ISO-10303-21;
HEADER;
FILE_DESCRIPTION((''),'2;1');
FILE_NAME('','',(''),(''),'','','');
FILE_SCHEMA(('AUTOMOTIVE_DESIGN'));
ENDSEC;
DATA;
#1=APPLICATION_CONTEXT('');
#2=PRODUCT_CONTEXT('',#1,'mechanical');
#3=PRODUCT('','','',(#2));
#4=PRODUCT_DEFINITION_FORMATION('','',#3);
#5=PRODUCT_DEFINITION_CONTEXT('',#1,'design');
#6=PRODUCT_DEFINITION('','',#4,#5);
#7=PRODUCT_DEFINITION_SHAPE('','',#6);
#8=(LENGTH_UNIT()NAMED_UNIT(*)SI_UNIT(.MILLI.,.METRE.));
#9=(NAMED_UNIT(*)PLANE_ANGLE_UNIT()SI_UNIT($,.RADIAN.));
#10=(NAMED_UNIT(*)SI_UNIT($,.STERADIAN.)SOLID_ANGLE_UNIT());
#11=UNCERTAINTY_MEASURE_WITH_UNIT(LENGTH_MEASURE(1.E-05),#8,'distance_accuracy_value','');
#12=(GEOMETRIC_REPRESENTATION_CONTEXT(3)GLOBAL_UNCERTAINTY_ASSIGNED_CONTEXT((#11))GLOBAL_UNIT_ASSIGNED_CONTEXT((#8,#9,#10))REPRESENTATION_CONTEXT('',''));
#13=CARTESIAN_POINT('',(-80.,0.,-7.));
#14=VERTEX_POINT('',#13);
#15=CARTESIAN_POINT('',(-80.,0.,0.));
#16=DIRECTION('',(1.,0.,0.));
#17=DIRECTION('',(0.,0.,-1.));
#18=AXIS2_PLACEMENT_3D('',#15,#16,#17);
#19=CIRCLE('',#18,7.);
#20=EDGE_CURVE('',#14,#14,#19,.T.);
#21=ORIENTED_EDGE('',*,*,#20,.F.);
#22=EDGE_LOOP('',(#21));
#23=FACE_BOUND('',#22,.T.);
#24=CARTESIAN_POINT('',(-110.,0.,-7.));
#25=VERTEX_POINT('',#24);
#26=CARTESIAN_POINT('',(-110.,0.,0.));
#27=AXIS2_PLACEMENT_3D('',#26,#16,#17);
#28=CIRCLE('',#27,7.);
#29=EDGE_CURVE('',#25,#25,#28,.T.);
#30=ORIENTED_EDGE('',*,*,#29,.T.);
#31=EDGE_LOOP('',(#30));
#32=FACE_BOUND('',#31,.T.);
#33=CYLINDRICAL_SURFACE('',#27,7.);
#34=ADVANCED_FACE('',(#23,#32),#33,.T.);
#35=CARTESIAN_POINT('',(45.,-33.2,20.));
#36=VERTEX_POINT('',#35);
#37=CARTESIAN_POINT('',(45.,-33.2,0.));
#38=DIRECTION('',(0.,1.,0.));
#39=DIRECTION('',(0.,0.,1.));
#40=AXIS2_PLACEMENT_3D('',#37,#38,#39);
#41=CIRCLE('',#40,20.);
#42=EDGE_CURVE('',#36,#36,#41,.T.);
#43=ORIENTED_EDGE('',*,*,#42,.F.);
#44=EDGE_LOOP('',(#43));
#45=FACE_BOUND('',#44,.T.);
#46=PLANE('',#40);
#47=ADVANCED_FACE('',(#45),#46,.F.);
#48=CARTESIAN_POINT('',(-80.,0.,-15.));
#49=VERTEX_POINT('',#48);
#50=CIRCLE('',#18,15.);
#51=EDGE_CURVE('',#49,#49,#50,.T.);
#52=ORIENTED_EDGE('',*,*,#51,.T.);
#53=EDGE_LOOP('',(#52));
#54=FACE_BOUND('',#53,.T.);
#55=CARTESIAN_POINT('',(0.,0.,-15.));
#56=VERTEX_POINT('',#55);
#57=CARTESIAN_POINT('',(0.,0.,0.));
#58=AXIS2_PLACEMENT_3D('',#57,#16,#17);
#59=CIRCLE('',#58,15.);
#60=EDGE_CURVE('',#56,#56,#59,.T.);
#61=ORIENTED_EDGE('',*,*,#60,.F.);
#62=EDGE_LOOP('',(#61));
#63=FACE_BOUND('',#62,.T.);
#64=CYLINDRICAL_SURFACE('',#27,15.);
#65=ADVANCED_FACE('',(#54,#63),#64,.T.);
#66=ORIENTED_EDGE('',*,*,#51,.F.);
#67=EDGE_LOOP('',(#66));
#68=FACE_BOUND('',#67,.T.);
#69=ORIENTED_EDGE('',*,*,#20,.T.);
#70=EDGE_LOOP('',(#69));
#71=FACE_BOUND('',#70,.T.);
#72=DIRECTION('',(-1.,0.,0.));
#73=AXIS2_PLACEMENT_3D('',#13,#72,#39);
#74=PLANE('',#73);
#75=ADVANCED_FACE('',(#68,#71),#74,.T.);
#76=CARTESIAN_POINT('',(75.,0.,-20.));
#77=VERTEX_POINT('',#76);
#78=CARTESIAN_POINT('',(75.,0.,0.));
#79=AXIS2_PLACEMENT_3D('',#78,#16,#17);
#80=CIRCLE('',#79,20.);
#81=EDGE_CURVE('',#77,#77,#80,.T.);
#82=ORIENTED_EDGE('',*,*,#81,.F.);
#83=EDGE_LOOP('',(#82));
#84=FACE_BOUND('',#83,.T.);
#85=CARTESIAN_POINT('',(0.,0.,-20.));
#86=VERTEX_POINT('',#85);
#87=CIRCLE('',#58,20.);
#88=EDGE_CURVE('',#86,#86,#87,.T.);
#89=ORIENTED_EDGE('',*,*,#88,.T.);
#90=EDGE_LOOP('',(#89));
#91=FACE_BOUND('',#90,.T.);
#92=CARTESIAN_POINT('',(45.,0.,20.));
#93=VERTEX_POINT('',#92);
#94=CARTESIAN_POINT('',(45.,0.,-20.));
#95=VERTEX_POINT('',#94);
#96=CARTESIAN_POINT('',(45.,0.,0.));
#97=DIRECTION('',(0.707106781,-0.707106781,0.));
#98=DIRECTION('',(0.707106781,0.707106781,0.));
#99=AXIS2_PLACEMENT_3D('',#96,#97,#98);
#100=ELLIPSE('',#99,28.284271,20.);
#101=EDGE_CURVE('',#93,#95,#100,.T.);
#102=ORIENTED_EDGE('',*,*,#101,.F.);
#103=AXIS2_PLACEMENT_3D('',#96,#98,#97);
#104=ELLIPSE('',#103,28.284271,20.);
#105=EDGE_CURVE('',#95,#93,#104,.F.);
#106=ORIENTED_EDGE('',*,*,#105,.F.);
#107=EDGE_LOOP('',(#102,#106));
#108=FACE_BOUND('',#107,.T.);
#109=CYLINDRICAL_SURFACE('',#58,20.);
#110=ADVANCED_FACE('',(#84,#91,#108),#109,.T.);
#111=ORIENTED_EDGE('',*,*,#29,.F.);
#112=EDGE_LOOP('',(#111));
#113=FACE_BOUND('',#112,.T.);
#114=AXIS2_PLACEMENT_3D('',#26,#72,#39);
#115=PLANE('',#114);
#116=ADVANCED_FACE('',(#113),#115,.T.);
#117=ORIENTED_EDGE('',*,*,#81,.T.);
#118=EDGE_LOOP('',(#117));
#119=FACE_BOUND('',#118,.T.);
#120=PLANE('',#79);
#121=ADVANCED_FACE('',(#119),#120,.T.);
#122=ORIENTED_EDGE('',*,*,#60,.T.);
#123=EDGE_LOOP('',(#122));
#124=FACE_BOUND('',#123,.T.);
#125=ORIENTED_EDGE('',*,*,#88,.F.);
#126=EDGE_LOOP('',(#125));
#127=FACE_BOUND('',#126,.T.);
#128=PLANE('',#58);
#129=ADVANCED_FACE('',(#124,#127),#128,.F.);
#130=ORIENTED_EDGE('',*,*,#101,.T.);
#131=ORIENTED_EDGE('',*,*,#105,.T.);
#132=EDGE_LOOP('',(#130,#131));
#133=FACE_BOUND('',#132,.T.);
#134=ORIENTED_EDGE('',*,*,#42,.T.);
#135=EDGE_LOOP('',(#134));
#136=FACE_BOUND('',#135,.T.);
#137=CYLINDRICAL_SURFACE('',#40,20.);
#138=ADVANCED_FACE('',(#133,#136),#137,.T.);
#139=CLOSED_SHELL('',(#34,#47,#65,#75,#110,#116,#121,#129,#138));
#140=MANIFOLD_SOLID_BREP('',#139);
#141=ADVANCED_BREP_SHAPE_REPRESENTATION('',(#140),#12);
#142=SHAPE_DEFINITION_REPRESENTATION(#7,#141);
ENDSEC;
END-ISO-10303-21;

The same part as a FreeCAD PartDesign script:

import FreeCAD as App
import Part
import Sketcher


def add_polygon(sketch, points):
    """Adds a closed chain of lines whose ends are joined by coincident constraints."""
    first, n = sketch.GeometryCount, len(points)
    for a, b in zip(points, points[1:] + points[:1]):
        sketch.addGeometry(Part.LineSegment(App.Vector(*a, 0), App.Vector(*b, 0)), False)
    for i in range(n):
        sketch.addConstraint(Sketcher.Constraint("Coincident", first + i, 2, first + (i + 1) % n, 1))

doc = App.newDocument("Part")
body = doc.addObject("PartDesign::Body", "Body")

sketch1 = doc.addObject("Sketcher::SketchObject", "Sketch")
body.addObject(sketch1)
sketch1.AttachmentSupport = (doc.YZ_Plane, [""])
sketch1.MapMode = "FlatFace"
sketch1.addGeometry(Part.Circle(App.Vector(0, 0, 0), App.Vector(0, 0, 1), 20), False)
sketch1.addConstraint([
    Sketcher.Constraint("Coincident", 0, 3, -1, 1),
    Sketcher.Constraint("Diameter", 0, 40.0),
])

sketch2 = doc.addObject("Sketcher::SketchObject", "Sketch001")
body.addObject(sketch2)
sketch2.AttachmentSupport = (doc.XY_Plane, [""])
sketch2.MapMode = "FlatFace"
sketch2.addGeometry(Part.LineSegment(App.Vector(0, 0, 0), App.Vector(75, 0, 0)), False)
sketch2.addConstraint([
    Sketcher.Constraint("Horizontal", 0),
    Sketcher.Constraint("Coincident", 0, 1, -1, 1),
    Sketcher.Constraint("DistanceX", 0, 1, 0, 2, 75.0),
])
doc.recompute()

additivepipe = doc.addObject("PartDesign::AdditivePipe", "AdditivePipe")
body.addObject(additivepipe)
additivepipe.Profile = sketch1
additivepipe.Spine = (sketch2, ["Edge1"])

sketch3 = doc.addObject("Sketcher::SketchObject", "Sketch002")
body.addObject(sketch3)
sketch3.AttachmentSupport = (doc.XZ_Plane, [""])
sketch3.MapMode = "FlatFace"
sketch3.addGeometry(Part.Circle(App.Vector(45, 0, 0), App.Vector(0, 0, 1), 20), False)
sketch3.addConstraint([
    Sketcher.Constraint("PointOnObject", 0, 3, -1),
    Sketcher.Constraint("Diameter", 0, 40.0),
    Sketcher.Constraint("DistanceX", -1, 1, 0, 3, 45.0),
])
pad1 = doc.addObject("PartDesign::Pad", "Pad")
body.addObject(pad1)
pad1.Profile = sketch3
pad1.Length = 33.2

sketch4 = doc.addObject("Sketcher::SketchObject", "Sketch003")
body.addObject(sketch4)
sketch4.AttachmentSupport = (doc.XZ_Plane, [""])
sketch4.MapMode = "FlatFace"
add_polygon(sketch4, [(-110, 0), (0, 0), (0, -15), (-80, -15), (-80, -7), (-110, -7)])
sketch4.addConstraint([
    Sketcher.Constraint("Horizontal", 0),
    Sketcher.Constraint("Vertical", 1),
    Sketcher.Constraint("Horizontal", 2),
    Sketcher.Constraint("Vertical", 3),
    Sketcher.Constraint("Horizontal", 4),
    Sketcher.Constraint("Vertical", 5),
    Sketcher.Constraint("Coincident", 0, 2, -1, 1),
    Sketcher.Constraint("DistanceX", 0, 1, 0, 2, 110.0),
    Sketcher.Constraint("DistanceX", 2, 2, 2, 1, 80.0),
    Sketcher.Constraint("DistanceY", 1, 2, 1, 1, 15.0),
    Sketcher.Constraint("DistanceY", 3, 1, 3, 2, 8.0),
])
revolution = doc.addObject("PartDesign::Revolution", "Revolution")
body.addObject(revolution)
revolution.Profile = sketch4
revolution.ReferenceAxis = (sketch4, ["H_Axis"])
revolution.Angle = 360

doc.recompute()
